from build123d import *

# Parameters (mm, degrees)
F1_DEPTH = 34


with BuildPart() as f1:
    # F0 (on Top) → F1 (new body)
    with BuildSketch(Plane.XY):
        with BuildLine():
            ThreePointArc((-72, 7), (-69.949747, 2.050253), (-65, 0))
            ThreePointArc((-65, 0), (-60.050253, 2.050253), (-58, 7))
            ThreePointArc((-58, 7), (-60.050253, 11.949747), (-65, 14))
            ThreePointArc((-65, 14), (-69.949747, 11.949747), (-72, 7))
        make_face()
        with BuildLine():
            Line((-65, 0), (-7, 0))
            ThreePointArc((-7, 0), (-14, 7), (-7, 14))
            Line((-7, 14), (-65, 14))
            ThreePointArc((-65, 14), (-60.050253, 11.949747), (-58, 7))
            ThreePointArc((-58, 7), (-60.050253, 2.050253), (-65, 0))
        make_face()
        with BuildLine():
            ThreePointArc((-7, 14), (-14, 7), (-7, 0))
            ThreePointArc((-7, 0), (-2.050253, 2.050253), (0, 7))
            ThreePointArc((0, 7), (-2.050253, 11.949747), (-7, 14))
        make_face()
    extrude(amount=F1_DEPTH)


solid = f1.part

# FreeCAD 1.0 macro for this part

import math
import FreeCAD as App
import Part
import Sketcher
from FreeCAD import Vector
Q = App.Units.Quantity

doc = App.newDocument("Part")
body = doc.addObject("PartDesign::Body", "Body")

# Sketch on XY plane
sketch1 = doc.addObject("Sketcher::SketchObject", "Sketch")
body.addObject(sketch1)
sketch1.AttachmentSupport = (doc.XY_Plane, [""])
sketch1.MapMode = "FlatFace"
sketch1.addGeometry([
    Part.ArcOfCircle(Part.Circle(Vector(-65, 7, 0), Vector(0, 0, 1), 7), math.radians(-180), math.radians(-90)),  # 0
    Part.LineSegment(Vector(-65, 0, 0), Vector(-7, 0, 0)),  # 1
    Part.ArcOfCircle(Part.Circle(Vector(-7, 7, 0), Vector(0, 0, 1), 7), math.radians(-90), math.radians(0)),  # 2
    Part.ArcOfCircle(Part.Circle(Vector(-7, 7, 0), Vector(0, 0, 1), 7), math.radians(0), math.radians(90)),  # 3
    Part.LineSegment(Vector(-7, 14, 0), Vector(-65, 14, 0)),  # 4
    Part.ArcOfCircle(Part.Circle(Vector(-65, 7, 0), Vector(0, 0, 1), 7), math.radians(90), math.radians(180)),  # 5
], False)
sketch1.addConstraint([
    Sketcher.Constraint("Tangent", 0, 2, 1, 1),
    Sketcher.Constraint("Tangent", 1, 2, 2, 1),
    Sketcher.Constraint("Tangent", 2, 2, 3, 1),
    Sketcher.Constraint("Tangent", 3, 2, 4, 1),
    Sketcher.Constraint("Tangent", 4, 2, 5, 1),
    Sketcher.Constraint("Tangent", 5, 2, 0, 1),
    Sketcher.Constraint("Horizontal", 1),
    Sketcher.Constraint("Horizontal", 4),
    Sketcher.Constraint("Equal", 0, 2),
    Sketcher.Constraint("Equal", 2, 3),
    Sketcher.Constraint("PointOnObject", 0, 2, -1),
    Sketcher.Constraint("PointOnObject", 2, 2, -2),
    Sketcher.Constraint("Horizontal", 5, 3, 2, 2),
    Sketcher.Constraint("Horizontal", 2, 2, 5, 2),
    Sketcher.Constraint("Radius", 0, Q("7.000002 mm")),
    Sketcher.Constraint("DistanceX", 1, 1, 1, 2, Q("58 mm")),
])
pad1 = doc.addObject("PartDesign::Pad", "Pad")
body.addObject(pad1)
pad1.Profile = sketch1
pad1.Length = 34

doc.recompute()
